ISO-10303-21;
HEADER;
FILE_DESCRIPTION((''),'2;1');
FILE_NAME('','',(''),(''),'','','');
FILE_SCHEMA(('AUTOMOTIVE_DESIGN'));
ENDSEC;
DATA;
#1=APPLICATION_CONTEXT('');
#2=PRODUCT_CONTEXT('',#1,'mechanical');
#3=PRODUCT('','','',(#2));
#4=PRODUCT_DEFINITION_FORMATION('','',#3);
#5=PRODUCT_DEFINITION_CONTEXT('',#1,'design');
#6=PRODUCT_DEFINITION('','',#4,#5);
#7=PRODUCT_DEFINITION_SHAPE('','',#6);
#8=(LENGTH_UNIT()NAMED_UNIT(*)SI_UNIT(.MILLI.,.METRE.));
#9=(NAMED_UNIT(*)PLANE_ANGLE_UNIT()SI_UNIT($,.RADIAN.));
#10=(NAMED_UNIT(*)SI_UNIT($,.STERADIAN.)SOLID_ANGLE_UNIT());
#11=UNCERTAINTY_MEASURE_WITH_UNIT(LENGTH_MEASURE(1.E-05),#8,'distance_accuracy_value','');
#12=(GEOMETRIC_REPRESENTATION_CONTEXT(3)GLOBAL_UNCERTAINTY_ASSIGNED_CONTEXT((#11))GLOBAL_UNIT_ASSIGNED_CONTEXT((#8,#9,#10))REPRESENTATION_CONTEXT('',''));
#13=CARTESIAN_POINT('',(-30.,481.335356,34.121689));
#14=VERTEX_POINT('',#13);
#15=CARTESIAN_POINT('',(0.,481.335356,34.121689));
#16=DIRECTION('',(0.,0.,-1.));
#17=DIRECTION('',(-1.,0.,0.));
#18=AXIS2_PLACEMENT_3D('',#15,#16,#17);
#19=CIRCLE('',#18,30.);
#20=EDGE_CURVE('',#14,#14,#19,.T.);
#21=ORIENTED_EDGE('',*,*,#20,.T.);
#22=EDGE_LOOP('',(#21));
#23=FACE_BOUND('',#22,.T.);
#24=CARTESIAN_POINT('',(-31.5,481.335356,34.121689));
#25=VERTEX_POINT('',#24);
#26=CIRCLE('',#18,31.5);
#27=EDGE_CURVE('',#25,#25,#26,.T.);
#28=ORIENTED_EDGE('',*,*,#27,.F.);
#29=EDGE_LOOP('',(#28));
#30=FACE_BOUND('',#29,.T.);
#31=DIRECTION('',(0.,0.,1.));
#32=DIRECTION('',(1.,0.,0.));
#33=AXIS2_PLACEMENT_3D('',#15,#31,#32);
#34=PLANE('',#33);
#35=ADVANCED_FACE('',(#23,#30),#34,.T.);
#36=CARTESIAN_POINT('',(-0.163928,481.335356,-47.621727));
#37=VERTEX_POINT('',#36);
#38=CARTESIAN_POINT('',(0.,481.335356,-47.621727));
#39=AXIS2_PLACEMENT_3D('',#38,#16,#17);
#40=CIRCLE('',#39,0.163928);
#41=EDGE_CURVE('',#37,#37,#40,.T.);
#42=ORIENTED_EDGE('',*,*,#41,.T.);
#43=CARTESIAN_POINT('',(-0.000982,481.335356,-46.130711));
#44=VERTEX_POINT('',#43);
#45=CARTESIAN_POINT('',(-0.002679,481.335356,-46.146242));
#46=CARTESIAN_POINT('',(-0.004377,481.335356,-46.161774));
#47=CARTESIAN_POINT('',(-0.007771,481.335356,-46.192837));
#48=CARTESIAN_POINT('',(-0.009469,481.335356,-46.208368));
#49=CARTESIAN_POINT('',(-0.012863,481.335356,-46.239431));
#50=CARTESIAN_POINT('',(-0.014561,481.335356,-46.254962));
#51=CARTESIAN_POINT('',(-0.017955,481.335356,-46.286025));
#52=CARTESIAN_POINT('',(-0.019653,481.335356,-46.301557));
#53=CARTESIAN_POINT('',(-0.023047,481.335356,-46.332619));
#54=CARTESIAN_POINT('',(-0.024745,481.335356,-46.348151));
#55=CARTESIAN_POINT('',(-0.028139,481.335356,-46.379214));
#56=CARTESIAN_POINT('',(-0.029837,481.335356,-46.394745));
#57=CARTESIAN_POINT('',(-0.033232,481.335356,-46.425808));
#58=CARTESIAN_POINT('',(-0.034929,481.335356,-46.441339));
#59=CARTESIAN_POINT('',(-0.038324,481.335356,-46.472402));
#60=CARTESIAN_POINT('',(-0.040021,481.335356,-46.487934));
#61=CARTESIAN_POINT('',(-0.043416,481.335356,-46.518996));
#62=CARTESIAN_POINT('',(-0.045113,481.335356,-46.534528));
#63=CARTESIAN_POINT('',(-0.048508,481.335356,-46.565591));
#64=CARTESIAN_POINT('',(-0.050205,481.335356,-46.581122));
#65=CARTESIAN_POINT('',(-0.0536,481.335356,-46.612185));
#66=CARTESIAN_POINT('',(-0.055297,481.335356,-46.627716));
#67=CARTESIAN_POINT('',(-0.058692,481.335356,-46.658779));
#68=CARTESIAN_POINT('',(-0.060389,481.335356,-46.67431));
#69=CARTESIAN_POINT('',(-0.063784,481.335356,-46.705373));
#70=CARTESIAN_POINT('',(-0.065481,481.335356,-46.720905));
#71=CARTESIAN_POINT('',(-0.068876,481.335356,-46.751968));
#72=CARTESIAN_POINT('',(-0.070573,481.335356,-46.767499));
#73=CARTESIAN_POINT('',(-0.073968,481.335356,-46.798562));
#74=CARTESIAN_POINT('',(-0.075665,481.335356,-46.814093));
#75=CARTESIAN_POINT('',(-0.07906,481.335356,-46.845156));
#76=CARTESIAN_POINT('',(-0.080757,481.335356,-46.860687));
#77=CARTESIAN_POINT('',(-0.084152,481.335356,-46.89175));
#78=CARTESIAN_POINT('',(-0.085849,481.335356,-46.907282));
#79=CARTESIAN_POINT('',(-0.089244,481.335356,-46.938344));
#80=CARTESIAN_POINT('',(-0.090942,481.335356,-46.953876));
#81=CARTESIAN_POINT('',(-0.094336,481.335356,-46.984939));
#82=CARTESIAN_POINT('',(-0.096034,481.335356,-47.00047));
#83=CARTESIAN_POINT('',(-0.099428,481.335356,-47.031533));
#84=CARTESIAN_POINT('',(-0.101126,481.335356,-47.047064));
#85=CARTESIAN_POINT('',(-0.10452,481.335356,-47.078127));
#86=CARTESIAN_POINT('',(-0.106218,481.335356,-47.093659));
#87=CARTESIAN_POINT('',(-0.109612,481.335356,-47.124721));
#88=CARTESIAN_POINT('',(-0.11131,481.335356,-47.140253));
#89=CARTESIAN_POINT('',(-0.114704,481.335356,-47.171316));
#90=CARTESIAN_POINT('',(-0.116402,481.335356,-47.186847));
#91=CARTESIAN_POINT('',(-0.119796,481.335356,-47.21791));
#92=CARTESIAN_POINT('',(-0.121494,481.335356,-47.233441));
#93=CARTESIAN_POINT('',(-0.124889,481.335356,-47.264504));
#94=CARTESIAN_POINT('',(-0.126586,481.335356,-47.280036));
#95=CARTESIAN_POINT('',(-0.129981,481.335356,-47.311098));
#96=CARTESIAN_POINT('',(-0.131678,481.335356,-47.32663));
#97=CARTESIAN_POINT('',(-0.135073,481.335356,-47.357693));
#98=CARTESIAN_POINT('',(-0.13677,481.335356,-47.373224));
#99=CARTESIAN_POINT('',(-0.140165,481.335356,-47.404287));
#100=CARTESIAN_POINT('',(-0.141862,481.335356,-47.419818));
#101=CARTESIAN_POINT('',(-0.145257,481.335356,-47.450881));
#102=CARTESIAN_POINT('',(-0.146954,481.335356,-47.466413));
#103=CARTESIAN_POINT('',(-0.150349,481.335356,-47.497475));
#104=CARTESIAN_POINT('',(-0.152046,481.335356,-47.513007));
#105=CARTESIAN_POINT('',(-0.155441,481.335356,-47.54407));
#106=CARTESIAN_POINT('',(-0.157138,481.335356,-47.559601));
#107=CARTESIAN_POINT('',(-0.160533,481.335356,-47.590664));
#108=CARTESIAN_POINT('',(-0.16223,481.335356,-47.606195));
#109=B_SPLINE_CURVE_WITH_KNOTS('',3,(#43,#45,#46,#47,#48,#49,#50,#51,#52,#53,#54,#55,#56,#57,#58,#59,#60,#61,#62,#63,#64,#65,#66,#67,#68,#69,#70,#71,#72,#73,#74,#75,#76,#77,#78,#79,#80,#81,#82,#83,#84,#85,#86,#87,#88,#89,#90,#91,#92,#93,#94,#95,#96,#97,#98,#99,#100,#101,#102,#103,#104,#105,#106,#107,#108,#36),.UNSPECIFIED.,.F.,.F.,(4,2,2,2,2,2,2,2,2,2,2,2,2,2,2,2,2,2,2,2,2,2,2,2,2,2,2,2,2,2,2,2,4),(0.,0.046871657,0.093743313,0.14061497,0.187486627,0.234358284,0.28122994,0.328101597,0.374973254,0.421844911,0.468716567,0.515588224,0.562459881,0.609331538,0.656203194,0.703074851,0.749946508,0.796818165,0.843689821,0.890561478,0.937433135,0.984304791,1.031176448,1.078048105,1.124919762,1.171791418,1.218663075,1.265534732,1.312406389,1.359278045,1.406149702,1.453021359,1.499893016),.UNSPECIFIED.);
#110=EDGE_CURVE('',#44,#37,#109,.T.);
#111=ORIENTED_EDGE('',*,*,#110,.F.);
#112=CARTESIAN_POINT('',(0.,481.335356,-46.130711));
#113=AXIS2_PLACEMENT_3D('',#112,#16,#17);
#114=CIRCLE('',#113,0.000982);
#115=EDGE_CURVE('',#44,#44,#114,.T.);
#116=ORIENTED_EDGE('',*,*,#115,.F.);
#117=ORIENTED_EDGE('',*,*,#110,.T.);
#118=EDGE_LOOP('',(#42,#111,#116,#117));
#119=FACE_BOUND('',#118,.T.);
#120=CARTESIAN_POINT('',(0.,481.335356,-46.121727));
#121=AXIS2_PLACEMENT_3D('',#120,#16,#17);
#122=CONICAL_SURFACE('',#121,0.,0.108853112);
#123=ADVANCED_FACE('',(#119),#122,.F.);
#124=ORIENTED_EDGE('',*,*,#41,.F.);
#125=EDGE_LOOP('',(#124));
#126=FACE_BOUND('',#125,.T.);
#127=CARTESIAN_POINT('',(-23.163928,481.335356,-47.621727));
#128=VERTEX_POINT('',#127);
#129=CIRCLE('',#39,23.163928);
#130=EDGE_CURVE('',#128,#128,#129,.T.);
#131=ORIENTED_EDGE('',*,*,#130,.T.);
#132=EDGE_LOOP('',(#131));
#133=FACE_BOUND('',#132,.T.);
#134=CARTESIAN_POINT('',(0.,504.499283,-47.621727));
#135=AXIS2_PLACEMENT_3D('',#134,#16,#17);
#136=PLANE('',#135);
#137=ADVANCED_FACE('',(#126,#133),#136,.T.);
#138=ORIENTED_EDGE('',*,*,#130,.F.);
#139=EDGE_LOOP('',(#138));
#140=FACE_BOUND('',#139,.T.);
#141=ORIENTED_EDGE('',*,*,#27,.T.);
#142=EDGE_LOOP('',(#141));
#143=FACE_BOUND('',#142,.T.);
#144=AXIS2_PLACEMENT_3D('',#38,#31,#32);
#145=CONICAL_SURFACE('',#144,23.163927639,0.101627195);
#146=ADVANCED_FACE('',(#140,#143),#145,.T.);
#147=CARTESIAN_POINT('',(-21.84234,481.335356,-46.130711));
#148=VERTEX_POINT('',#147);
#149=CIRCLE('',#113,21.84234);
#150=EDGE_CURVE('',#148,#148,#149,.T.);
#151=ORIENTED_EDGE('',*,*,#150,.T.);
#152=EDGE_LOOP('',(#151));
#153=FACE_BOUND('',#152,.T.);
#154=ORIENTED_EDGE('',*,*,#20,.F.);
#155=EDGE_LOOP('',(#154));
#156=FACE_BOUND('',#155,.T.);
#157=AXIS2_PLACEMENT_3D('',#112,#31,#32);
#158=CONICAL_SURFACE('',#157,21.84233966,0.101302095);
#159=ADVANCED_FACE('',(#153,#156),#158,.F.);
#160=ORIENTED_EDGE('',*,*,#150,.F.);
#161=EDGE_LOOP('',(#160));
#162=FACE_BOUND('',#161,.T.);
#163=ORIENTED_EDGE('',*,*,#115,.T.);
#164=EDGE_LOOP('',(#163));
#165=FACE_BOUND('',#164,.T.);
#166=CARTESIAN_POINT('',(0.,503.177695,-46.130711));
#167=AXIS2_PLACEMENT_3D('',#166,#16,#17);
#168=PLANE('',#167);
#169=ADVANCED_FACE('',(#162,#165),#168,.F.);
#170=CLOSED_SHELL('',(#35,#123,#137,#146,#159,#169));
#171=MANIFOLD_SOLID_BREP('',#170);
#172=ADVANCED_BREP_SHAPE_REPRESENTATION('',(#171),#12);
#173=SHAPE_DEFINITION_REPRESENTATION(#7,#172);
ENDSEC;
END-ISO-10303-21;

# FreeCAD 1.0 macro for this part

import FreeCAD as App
import Part
import Sketcher
from FreeCAD import Vector


def add_polygon(sketch, points):
    """Adds a closed chain of lines whose ends are joined by coincident constraints."""
    first, n = sketch.GeometryCount, len(points)
    for a, b in zip(points, points[1:] + points[:1]):
        sketch.addGeometry(Part.LineSegment(App.Vector(*a, 0), App.Vector(*b, 0)), False)
    for i in range(n):
        sketch.addConstraint(Sketcher.Constraint("Coincident", first + i, 2, first + (i + 1) % n, 1))

doc = App.newDocument("Part")
body = doc.addObject("PartDesign::Body", "Body")

# Sketch on YZ plane
sketch1 = body.newObject("Sketcher::SketchObject", "Sketch")
sketch1.AttachmentSupport = (doc.getObject("YZ_Plane"), [""])
sketch1.MapMode = "FlatFace"
add_polygon(sketch1, [(481.335356, 34.121689), (481.335356, -46.121727), (481.499283, -47.621727), (504.499283, -47.621727), (512.835356, 34.121689)])  # lines 0-4
sketch1.addGeometry(Part.LineSegment(Vector(481.335356, -47.621727, 0), Vector(481.335356, 34.121689, 0)), True)  # axis
sketch1.addConstraint([
    Sketcher.Constraint("Vertical", 0),
    Sketcher.Constraint("Horizontal", 2),
    Sketcher.Constraint("Horizontal", 4),
    Sketcher.Constraint("Vertical", 5),
    Sketcher.Constraint("Coincident", 5, 2, 4, 2),
    Sketcher.Constraint("Horizontal", 2, 2, 5, 1),
    Sketcher.Constraint("DistanceX", 2, 1, 2, 2, 23.0),
    Sketcher.Constraint("DistanceX", 4, 2, 4, 1, 31.5),
    Sketcher.Constraint("DistanceY", 1, 2, 0, 2, 1.5),
    Sketcher.Constraint("Distance", 1, 1.508931),
    Sketcher.Constraint("DistanceY", 0, 2, 0, 1, 80.243416),
    Sketcher.Constraint("DistanceY", -1, 1, 3, 2, 34.121689),
    Sketcher.Constraint("DistanceX", -1, 1, 0, 2, 481.335356),
])
revolution = body.newObject("PartDesign::Revolution", "Revolution")
revolution.Profile = sketch1
revolution.ReferenceAxis = (sketch1, ["Axis0"])
revolution.Angle = 360

# Sketch on YZ plane
sketch2 = body.newObject("Sketcher::SketchObject", "Sketch001")
sketch2.AttachmentSupport = (doc.getObject("YZ_Plane"), [""])
sketch2.MapMode = "FlatFace"
add_polygon(sketch2, [(503.177695, -46.130711), (511.335356, 34.121689), (481.335356, 34.121689), (481.335356, -46.130711)])  # lines 0-3
sketch2.addGeometry(Part.LineSegment(Vector(481.335356, -46.130711, 0), Vector(481.335356, 34.121689, 0)), True)  # axis
sketch2.addConstraint([
    Sketcher.Constraint("Horizontal", 1),
    Sketcher.Constraint("Vertical", 2),
    Sketcher.Constraint("Horizontal", 3),
    Sketcher.Constraint("Vertical", 4),
    Sketcher.Constraint("Coincident", 4, 1, 2, 2),
    Sketcher.Constraint("Horizontal", 0, 2, 4, 2),
    Sketcher.Constraint("DistanceX", 1, 2, 1, 1, 30.0),
    Sketcher.Constraint("DistanceY", 2, 2, 2, 1, 80.2524),
    Sketcher.Constraint("DistanceX", 3, 1, 3, 2, 21.84234),
    Sketcher.Constraint("DistanceY", -1, 1, 0, 2, 34.121689),
    Sketcher.Constraint("DistanceX", -1, 1, 0, 2, 511.335356),
])
groove = body.newObject("PartDesign::Groove", "Groove")
groove.Profile = sketch2
groove.ReferenceAxis = (sketch2, ["Axis0"])
groove.Angle = 360

doc.recompute()
